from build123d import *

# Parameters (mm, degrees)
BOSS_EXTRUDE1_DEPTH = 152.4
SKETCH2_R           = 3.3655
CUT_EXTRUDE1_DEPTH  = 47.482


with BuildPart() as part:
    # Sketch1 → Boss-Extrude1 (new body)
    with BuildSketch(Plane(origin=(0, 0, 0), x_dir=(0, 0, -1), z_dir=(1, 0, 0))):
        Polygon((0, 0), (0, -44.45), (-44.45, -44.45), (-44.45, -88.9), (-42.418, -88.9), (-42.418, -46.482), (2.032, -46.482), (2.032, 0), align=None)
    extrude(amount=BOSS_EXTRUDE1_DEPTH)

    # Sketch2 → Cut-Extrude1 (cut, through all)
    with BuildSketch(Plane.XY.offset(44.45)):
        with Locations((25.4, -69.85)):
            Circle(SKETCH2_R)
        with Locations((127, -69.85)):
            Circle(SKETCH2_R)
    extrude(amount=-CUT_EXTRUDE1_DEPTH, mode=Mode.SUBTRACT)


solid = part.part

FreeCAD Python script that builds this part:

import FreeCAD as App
import Part
import Sketcher
from FreeCAD import Vector
Q = App.Units.Quantity


def add_polygon(sketch, points):
    """Adds a closed chain of lines whose ends are joined by coincident constraints."""
    first, n = sketch.GeometryCount, len(points)
    for a, b in zip(points, points[1:] + points[:1]):
        sketch.addGeometry(Part.LineSegment(App.Vector(*a, 0), App.Vector(*b, 0)), False)
    for i in range(n):
        sketch.addConstraint(Sketcher.Constraint("Coincident", first + i, 2, first + (i + 1) % n, 1))

doc = App.newDocument("Part")
body = doc.addObject("PartDesign::Body", "Body")

sketch1 = body.newObject("Sketcher::SketchObject", "Sketch")
sketch1.AttachmentSupport = (doc.getObject("YZ_Plane"), [""])
sketch1.MapMode = "FlatFace"
add_polygon(sketch1, [(0, 0), (-44.5, 0), (-44.5, 44.5), (-88.9, 44.5), (-88.9, 42.4), (-46.5, 42.4), (-46.5, -2), (0, -2)])
sketch1.addConstraint([
    Sketcher.Constraint("Horizontal", 0),
    Sketcher.Constraint("Vertical", 1),
    Sketcher.Constraint("Horizontal", 2),
    Sketcher.Constraint("Vertical", 3),
    Sketcher.Constraint("Horizontal", 4),
    Sketcher.Constraint("Vertical", 5),
    Sketcher.Constraint("Horizontal", 6),
    Sketcher.Constraint("Vertical", 7),
    Sketcher.Constraint("Coincident", 7, 2, -1, 1),
    Sketcher.Constraint("Equal", 0, 2),
    Sketcher.Constraint("Equal", 2, 1),
    Sketcher.Constraint("Equal", 1, 5),
    Sketcher.Constraint("DistanceX", 0, 2, 0, 1, Q("1.75 in")),
    Sketcher.Constraint("DistanceX", 4, 1, 4, 2, Q("1.67 in")),
    Sketcher.Constraint("DistanceY", 3, 2, 3, 1, Q("0.08 in")),
])
pad1 = body.newObject("PartDesign::Pad", "Pad")
pad1.Profile = sketch1
pad1.Length = Q("6 in")

sketch2 = body.newObject("Sketcher::SketchObject", "Sketch001")
sketch2.AttachmentSupport = (doc.getObject("XY_Plane"), [""])
sketch2.MapMode = "FlatFace"
sketch2.AttachmentOffset = App.Placement(Vector(0, 0, 1.75 * 25.4), App.Rotation())
sketch2.addGeometry([
    Part.Circle(Vector(25.4, -69.8, 0), Vector(0, 0, 1), 3.4),
    Part.Circle(Vector(127, -69.8, 0), Vector(0, 0, 1), 3.4),
], False)
sketch2.addConstraint([
    Sketcher.Constraint("Equal", 0, 1),
    Sketcher.Constraint("Horizontal", 0, 3, 1, 3),
    Sketcher.Constraint("Diameter", 0, Q("0.265 in")),
    Sketcher.Constraint("DistanceX", -1, 1, 0, 3, Q("1 in")),
    Sketcher.Constraint("DistanceX", -1, 1, 1, 3, Q("5 in")),
    Sketcher.Constraint("DistanceY", 0, 3, -1, 1, Q("2.75 in")),
])
pocket1 = body.newObject("PartDesign::Pocket", "Pocket")
pocket1.Profile = sketch2
pocket1.Type = "ThroughAll"

doc.recompute()
